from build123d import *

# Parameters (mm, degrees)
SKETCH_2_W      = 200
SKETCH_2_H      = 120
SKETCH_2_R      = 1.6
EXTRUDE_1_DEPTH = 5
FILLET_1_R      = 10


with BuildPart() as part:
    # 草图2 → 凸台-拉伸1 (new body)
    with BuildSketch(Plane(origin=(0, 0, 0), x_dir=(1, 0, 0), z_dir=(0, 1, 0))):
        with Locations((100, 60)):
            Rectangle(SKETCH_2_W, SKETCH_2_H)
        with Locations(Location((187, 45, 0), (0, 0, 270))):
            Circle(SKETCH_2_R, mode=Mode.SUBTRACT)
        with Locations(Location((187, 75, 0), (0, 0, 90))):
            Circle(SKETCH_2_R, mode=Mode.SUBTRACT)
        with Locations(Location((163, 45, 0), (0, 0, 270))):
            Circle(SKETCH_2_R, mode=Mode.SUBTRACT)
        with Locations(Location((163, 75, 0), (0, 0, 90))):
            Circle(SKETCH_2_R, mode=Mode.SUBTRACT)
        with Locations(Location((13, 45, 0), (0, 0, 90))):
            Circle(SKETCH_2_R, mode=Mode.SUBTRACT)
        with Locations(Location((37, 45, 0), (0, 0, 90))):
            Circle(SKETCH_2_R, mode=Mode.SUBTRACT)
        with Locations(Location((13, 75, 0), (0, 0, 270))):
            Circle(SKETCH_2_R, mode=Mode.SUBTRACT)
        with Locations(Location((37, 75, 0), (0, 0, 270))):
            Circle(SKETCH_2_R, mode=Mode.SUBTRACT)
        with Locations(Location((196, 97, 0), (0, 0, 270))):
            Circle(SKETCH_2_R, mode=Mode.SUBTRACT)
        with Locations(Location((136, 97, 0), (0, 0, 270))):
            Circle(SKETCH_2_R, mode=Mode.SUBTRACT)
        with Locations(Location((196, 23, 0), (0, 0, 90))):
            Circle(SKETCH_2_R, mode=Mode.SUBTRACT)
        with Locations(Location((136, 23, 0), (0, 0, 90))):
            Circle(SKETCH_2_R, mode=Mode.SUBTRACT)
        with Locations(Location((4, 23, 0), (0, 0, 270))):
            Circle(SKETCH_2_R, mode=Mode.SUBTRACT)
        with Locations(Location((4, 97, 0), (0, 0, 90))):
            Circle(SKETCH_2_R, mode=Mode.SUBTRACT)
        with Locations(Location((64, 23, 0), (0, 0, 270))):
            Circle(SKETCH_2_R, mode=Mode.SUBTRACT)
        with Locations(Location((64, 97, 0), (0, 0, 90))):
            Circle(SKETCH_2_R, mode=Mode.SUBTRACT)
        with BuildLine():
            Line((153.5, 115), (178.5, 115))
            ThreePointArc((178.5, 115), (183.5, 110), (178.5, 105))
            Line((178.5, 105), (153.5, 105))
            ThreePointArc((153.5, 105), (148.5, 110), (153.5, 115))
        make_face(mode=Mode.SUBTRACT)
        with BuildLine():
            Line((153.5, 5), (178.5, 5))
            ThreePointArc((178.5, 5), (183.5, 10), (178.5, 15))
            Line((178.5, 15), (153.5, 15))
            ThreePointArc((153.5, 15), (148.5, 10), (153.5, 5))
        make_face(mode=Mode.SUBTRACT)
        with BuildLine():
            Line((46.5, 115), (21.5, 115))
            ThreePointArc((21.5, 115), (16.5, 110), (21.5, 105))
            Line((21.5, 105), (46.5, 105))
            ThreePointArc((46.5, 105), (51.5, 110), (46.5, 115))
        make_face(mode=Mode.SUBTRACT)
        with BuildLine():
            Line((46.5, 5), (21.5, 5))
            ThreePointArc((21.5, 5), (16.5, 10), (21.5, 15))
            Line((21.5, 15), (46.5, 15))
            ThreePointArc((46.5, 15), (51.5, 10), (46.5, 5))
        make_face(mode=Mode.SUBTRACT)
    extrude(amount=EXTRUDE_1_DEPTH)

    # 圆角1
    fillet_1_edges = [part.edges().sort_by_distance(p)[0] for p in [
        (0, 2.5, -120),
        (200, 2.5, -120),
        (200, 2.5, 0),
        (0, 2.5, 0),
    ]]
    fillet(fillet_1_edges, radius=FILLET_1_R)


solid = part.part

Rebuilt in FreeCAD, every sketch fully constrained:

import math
import FreeCAD as App
import Part
import Sketcher

V = App.Vector


def edges_at(feature, points):
    """Names of the edges that pass closest to the given points."""
    edges = feature.Shape.Edges
    near = lambda p: min(range(len(edges)), key=lambda i: edges[i].distToShape(Part.Vertex(*p))[0])
    return sorted({f"Edge{near(p) + 1}" for p in points})

doc = App.newDocument("Part")
params = doc.addObject("Spreadsheet::Sheet", "Params")
for row, (alias, value) in enumerate([
    ("sketch1_radius", "5 mm"),
    ("sketch1_diameter", "3.2 mm"),
    ("sketch1_width", "200 mm"),
    ("sketch1_width2", "25 mm"),
    ("sketch1_height", "120 mm"),
    ("pad1_length", "5 mm"),
    ("fillet_radius", "10 mm"),
], start=1):
    params.set(f"A{row}", alias)
    params.set(f"B{row}", "=" + value)
    params.setAlias(f"B{row}", alias)

body = doc.addObject("PartDesign::Body", "Body")

sketch1 = body.newObject("Sketcher::SketchObject", "Sketch")
sketch1.AttachmentSupport = (doc.getObject("XZ_Plane"), [""])
sketch1.MapMode = "FlatFace"
sketch1.addGeometry([
    Part.LineSegment(V(0, -120, 0), V(0, 0, 0)),
    Part.LineSegment(V(0, 0, 0), V(200, 0, 0)),
    Part.LineSegment(V(200, 0, 0), V(200, -120, 0)),
    Part.LineSegment(V(200, -120, 0), V(0, -120, 0)),
    Part.ArcOfCircle(Part.Circle(V(46.5, -10, 0), V(0, 0, 1), 5), math.radians(-90), math.radians(90)),
    Part.LineSegment(V(46.5, -5, 0), V(21.5, -5, 0)),
    Part.ArcOfCircle(Part.Circle(V(21.5, -10, 0), V(0, 0, 1), 5), math.radians(90), math.radians(270)),
    Part.LineSegment(V(21.5, -15, 0), V(46.5, -15, 0)),
    Part.Circle(V(4, -23, 0), V(0, 0, 1), 1.6),
    Part.Circle(V(64, -23, 0), V(0, 0, 1), 1.6),
    Part.Circle(V(13, -45, 0), V(0, 0, 1), 1.6),
    Part.Circle(V(37, -45, 0), V(0, 0, 1), 1.6),
    Part.Circle(V(136, -23, 0), V(0, 0, 1), 1.6),
    Part.LineSegment(V(178.5, -5, 0), V(153.5, -5, 0)),
    Part.ArcOfCircle(Part.Circle(V(153.5, -10, 0), V(0, 0, 1), 5), math.radians(90), math.radians(270)),
    Part.LineSegment(V(153.5, -15, 0), V(178.5, -15, 0)),
    Part.ArcOfCircle(Part.Circle(V(178.5, -10, 0), V(0, 0, 1), 5), math.radians(-90), math.radians(90)),
    Part.Circle(V(196, -23, 0), V(0, 0, 1), 1.6),
    Part.Circle(V(163, -45, 0), V(0, 0, 1), 1.6),
    Part.Circle(V(187, -45, 0), V(0, 0, 1), 1.6),
    Part.Circle(V(13, -75, 0), V(0, 0, 1), 1.6),
    Part.Circle(V(37, -75, 0), V(0, 0, 1), 1.6),
    Part.Circle(V(4, -97, 0), V(0, 0, 1), 1.6),
    Part.LineSegment(V(21.5, -115, 0), V(46.5, -115, 0)),
    Part.ArcOfCircle(Part.Circle(V(46.5, -110, 0), V(0, 0, 1), 5), math.radians(-90), math.radians(90)),
    Part.LineSegment(V(46.5, -105, 0), V(21.5, -105, 0)),
    Part.ArcOfCircle(Part.Circle(V(21.5, -110, 0), V(0, 0, 1), 5), math.radians(90), math.radians(270)),
    Part.Circle(V(64, -97, 0), V(0, 0, 1), 1.6),
    Part.Circle(V(163, -75, 0), V(0, 0, 1), 1.6),
    Part.Circle(V(187, -75, 0), V(0, 0, 1), 1.6),
    Part.Circle(V(136, -97, 0), V(0, 0, 1), 1.6),
    Part.Circle(V(196, -97, 0), V(0, 0, 1), 1.6),
    Part.ArcOfCircle(Part.Circle(V(153.5, -110, 0), V(0, 0, 1), 5), math.radians(90), math.radians(270)),
    Part.LineSegment(V(153.5, -115, 0), V(178.5, -115, 0)),
    Part.ArcOfCircle(Part.Circle(V(178.5, -110, 0), V(0, 0, 1), 5), math.radians(-90), math.radians(90)),
    Part.LineSegment(V(178.5, -105, 0), V(153.5, -105, 0)),
], False)
sketch1.addConstraint([
    Sketcher.Constraint("Coincident", 0, 2, 1, 1),
    Sketcher.Constraint("Coincident", 1, 2, 2, 1),
    Sketcher.Constraint("Coincident", 2, 2, 3, 1),
    Sketcher.Constraint("Coincident", 3, 2, 0, 1),
    Sketcher.Constraint("Tangent", 4, 2, 5, 1),
    Sketcher.Constraint("Tangent", 5, 2, 6, 1),
    Sketcher.Constraint("Tangent", 6, 2, 7, 1),
    Sketcher.Constraint("Tangent", 7, 2, 4, 1),
    Sketcher.Constraint("Tangent", 13, 2, 14, 1),
    Sketcher.Constraint("Tangent", 14, 2, 15, 1),
    Sketcher.Constraint("Tangent", 15, 2, 16, 1),
    Sketcher.Constraint("Tangent", 16, 2, 13, 1),
    Sketcher.Constraint("Tangent", 23, 2, 24, 1),
    Sketcher.Constraint("Tangent", 24, 2, 25, 1),
    Sketcher.Constraint("Tangent", 25, 2, 26, 1),
    Sketcher.Constraint("Tangent", 26, 2, 23, 1),
    Sketcher.Constraint("Tangent", 32, 2, 33, 1),
    Sketcher.Constraint("Tangent", 33, 2, 34, 1),
    Sketcher.Constraint("Tangent", 34, 2, 35, 1),
    Sketcher.Constraint("Tangent", 35, 2, 32, 1),
    Sketcher.Constraint("Vertical", 0),
    Sketcher.Constraint("Horizontal", 1),
    Sketcher.Constraint("Vertical", 2),
    Sketcher.Constraint("Horizontal", 3),
    Sketcher.Constraint("Horizontal", 5),
    Sketcher.Constraint("Horizontal", 7),
    Sketcher.Constraint("Horizontal", 13),
    Sketcher.Constraint("Horizontal", 15),
    Sketcher.Constraint("Horizontal", 23),
    Sketcher.Constraint("Horizontal", 25),
    Sketcher.Constraint("Horizontal", 33),
    Sketcher.Constraint("Horizontal", 35),
    Sketcher.Constraint("Coincident", 0, 2, -1, 1),
    Sketcher.Constraint("Equal", 8, 9),
    Sketcher.Constraint("Equal", 9, 10),
    Sketcher.Constraint("Equal", 10, 11),
    Sketcher.Constraint("Equal", 11, 12),
    Sketcher.Constraint("Equal", 6, 14),
    Sketcher.Constraint("Equal", 12, 17),
    Sketcher.Constraint("Equal", 17, 18),
    Sketcher.Constraint("Equal", 18, 19),
    Sketcher.Constraint("Equal", 19, 20),
    Sketcher.Constraint("Equal", 20, 21),
    Sketcher.Constraint("Equal", 21, 22),
    Sketcher.Constraint("Equal", 16, 24),
    Sketcher.Constraint("Equal", 22, 27),
    Sketcher.Constraint("Equal", 27, 28),
    Sketcher.Constraint("Equal", 28, 29),
    Sketcher.Constraint("Equal", 29, 30),
    Sketcher.Constraint("Equal", 30, 31),
    Sketcher.Constraint("Equal", 26, 32),
    Sketcher.Constraint("Horizontal", 8, 3, 9, 3),
    Sketcher.Constraint("Horizontal", 10, 3, 11, 3),
    Sketcher.Constraint("Horizontal", 9, 3, 12, 3),
    Sketcher.Constraint("Horizontal", 6, 3, 14, 3),
    Sketcher.Constraint("Horizontal", 12, 3, 17, 3),
    Sketcher.Constraint("Horizontal", 11, 3, 18, 3),
    Sketcher.Constraint("Horizontal", 18, 3, 19, 3),
    Sketcher.Constraint("Horizontal", 20, 3, 21, 3),
    Sketcher.Constraint("Horizontal", 22, 3, 27, 3),
    Sketcher.Constraint("Horizontal", 21, 3, 28, 3),
    Sketcher.Constraint("Horizontal", 28, 3, 29, 3),
    Sketcher.Constraint("Horizontal", 27, 3, 30, 3),
    Sketcher.Constraint("Horizontal", 30, 3, 31, 3),
    Sketcher.Constraint("Horizontal", 26, 3, 32, 3),
    Sketcher.Constraint("Vertical", 10, 3, 20, 3),
    Sketcher.Constraint("Vertical", 11, 3, 21, 3),
    Sketcher.Constraint("Vertical", 8, 3, 22, 3),
    Sketcher.Constraint("Vertical", 4, 3, 24, 3),
    Sketcher.Constraint("Vertical", 6, 3, 26, 3),
    Sketcher.Constraint("Vertical", 9, 3, 27, 3),
    Sketcher.Constraint("Vertical", 18, 3, 28, 3),
    Sketcher.Constraint("Vertical", 19, 3, 29, 3),
    Sketcher.Constraint("Vertical", 12, 3, 30, 3),
    Sketcher.Constraint("Vertical", 17, 3, 31, 3),
    Sketcher.Constraint("Vertical", 14, 3, 32, 3),
    Sketcher.Constraint("Vertical", 16, 3, 34, 3),
    Sketcher.Constraint("Equal", 7, 13),
    Sketcher.Constraint("Radius", 4, 5.0),
    Sketcher.Constraint("Diameter", 8, 3.2),
    Sketcher.Constraint("DistanceX", 1, 1, 1, 2, 200.0),
    Sketcher.Constraint("DistanceX", 5, 2, 5, 1, 25.0),
    Sketcher.Constraint("DistanceY", 0, 1, 0, 2, 120.0),
    Sketcher.Constraint("DistanceY", 4, 3, -1, 1, 10.0),
    Sketcher.Constraint("DistanceX", -1, 1, 8, 3, 4.0),
    Sketcher.Constraint("DistanceY", 8, 3, -1, 1, 23.0),
    Sketcher.Constraint("DistanceX", -1, 1, 9, 3, 64.0),
    Sketcher.Constraint("DistanceX", -1, 1, 10, 3, 13.0),
    Sketcher.Constraint("DistanceY", 10, 3, -1, 1, 45.0),
    Sketcher.Constraint("DistanceX", -1, 1, 11, 3, 37.0),
    Sketcher.Constraint("DistanceX", -1, 1, 12, 3, 136.0),
    Sketcher.Constraint("DistanceX", -1, 1, 17, 3, 196.0),
    Sketcher.Constraint("DistanceX", -1, 1, 18, 3, 163.0),
    Sketcher.Constraint("DistanceX", -1, 1, 19, 3, 187.0),
    Sketcher.Constraint("DistanceY", 20, 3, -1, 1, 75.0),
    Sketcher.Constraint("DistanceY", 22, 3, -1, 1, 97.0),
    Sketcher.Constraint("DistanceY", 24, 3, -1, 1, 110.0),
    Sketcher.Constraint("DistanceX", 4, 3, 14, 3, 107.0),
    Sketcher.Constraint("DistanceX", -1, 1, 4, 3, 46.5),
])
sketch1.setExpression("Constraints[78]", "Params.sketch1_radius")
sketch1.setExpression("Constraints[79]", "Params.sketch1_diameter")
sketch1.setExpression("Constraints[80]", "Params.sketch1_width")
sketch1.setExpression("Constraints[81]", "Params.sketch1_width2")
sketch1.setExpression("Constraints[82]", "Params.sketch1_height")
pad1 = body.newObject("PartDesign::Pad", "Pad")
pad1.Profile = sketch1
pad1.setExpression("Length", "Params.pad1_length")
pad1.Reversed = True
doc.recompute()

fillet = body.newObject("PartDesign::Fillet", "Fillet")
fillet.Base = (pad1, edges_at(pad1, [
    (0, 2.5, -120),
    (200, 2.5, -120),
    (200, 2.5, 0),
    (0, 2.5, 0),
]))
fillet.setExpression("Radius", "Params.fillet_radius")

doc.recompute()
